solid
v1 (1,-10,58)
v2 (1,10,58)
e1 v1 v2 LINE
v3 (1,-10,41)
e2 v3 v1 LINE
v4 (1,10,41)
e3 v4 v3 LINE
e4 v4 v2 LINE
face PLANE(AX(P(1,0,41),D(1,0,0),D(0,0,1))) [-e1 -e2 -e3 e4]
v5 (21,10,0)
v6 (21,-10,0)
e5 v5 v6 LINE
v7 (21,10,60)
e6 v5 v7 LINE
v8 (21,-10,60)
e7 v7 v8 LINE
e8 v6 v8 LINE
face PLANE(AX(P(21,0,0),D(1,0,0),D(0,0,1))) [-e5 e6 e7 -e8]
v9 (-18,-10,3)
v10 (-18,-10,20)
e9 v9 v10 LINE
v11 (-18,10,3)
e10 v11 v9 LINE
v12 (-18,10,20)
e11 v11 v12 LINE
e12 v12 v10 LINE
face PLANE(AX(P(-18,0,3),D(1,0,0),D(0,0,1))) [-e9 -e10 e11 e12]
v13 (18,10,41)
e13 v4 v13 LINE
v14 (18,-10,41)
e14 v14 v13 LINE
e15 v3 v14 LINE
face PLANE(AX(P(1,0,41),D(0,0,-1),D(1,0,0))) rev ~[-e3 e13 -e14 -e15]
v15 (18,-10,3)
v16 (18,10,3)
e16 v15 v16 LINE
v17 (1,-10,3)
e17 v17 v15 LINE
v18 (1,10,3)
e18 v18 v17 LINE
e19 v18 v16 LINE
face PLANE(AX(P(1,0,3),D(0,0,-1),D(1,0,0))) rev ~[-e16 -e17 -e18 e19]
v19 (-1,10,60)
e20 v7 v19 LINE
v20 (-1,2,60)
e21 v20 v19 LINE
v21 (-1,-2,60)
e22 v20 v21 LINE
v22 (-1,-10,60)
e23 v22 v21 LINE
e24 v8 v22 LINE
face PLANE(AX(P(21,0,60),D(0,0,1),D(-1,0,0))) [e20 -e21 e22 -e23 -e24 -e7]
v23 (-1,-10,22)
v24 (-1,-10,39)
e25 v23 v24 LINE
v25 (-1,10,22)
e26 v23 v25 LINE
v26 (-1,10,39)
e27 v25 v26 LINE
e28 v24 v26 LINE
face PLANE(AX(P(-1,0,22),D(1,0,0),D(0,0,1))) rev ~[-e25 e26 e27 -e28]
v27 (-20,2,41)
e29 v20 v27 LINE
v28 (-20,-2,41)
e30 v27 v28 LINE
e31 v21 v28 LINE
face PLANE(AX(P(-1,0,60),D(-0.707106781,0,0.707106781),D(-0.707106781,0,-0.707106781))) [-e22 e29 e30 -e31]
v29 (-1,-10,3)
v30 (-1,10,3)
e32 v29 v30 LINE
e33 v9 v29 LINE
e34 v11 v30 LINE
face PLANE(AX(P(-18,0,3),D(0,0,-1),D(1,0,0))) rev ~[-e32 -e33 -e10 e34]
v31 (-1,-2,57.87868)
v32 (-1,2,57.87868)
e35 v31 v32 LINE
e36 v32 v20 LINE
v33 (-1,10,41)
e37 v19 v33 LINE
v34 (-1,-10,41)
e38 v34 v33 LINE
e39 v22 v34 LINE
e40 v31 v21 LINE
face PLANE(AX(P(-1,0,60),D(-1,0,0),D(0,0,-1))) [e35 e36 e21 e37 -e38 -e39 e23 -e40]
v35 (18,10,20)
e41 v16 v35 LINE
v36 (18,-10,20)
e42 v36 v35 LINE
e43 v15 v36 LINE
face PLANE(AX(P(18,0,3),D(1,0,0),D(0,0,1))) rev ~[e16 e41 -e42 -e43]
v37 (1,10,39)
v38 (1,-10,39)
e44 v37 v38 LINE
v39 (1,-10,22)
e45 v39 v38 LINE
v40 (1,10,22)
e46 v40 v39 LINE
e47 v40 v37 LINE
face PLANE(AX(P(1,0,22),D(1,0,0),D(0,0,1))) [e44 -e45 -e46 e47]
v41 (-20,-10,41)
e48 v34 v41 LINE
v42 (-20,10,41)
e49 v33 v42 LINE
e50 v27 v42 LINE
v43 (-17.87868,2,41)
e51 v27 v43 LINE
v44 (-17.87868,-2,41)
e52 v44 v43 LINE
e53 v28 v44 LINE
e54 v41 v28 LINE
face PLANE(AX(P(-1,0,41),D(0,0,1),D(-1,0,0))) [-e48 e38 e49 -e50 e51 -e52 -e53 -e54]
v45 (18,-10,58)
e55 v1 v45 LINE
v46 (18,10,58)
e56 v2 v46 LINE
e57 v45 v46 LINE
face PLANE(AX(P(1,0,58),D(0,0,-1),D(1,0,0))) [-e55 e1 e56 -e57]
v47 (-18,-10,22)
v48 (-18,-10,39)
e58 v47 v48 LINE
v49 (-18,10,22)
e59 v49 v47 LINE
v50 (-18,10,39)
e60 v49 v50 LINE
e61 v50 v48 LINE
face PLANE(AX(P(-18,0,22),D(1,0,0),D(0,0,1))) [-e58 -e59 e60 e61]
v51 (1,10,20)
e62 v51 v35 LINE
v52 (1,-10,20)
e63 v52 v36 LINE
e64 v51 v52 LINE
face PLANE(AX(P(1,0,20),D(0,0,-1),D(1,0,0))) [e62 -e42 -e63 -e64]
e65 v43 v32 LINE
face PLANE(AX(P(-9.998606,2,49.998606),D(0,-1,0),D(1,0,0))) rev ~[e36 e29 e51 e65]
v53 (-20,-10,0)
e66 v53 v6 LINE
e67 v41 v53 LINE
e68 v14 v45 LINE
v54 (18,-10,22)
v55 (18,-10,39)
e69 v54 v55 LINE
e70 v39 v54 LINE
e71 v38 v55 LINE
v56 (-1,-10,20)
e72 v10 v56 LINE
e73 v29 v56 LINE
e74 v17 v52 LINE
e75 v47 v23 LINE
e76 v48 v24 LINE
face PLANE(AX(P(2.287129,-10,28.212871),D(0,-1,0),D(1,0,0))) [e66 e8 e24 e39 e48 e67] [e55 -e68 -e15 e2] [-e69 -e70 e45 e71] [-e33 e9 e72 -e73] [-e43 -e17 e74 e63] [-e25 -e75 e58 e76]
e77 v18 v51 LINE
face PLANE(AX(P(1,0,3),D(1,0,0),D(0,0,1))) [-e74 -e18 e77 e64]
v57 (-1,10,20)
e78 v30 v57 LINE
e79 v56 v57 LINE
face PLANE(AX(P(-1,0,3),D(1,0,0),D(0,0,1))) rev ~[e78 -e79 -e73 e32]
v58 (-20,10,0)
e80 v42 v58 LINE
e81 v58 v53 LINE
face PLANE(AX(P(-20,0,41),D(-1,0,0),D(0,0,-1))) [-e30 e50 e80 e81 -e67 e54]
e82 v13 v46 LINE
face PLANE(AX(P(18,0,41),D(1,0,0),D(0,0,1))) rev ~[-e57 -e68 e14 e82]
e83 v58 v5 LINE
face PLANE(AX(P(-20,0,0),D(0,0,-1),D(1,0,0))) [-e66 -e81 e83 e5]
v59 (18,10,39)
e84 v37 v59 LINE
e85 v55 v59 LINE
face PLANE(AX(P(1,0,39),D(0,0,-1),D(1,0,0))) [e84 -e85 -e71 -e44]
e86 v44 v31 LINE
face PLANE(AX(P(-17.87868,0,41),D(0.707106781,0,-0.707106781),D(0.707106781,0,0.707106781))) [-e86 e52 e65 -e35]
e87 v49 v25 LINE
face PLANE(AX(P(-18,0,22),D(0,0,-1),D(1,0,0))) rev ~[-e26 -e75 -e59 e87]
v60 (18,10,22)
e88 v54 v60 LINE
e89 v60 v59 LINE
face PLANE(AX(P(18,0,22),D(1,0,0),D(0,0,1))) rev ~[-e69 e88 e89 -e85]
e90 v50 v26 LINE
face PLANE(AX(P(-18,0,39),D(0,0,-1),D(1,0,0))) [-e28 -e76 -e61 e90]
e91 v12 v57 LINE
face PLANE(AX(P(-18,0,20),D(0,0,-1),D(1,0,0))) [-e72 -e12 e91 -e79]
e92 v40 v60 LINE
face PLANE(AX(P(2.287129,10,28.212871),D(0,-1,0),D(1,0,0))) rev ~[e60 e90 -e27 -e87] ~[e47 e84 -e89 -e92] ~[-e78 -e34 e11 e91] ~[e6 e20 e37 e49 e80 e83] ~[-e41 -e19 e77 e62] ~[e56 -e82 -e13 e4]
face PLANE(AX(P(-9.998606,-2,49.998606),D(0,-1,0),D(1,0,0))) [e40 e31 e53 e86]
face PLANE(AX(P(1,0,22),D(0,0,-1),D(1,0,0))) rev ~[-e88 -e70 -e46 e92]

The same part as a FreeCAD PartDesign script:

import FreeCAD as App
import Part
import Sketcher


def add_polygon(sketch, points):
    """Adds a closed chain of lines whose ends are joined by coincident constraints."""
    first, n = sketch.GeometryCount, len(points)
    for a, b in zip(points, points[1:] + points[:1]):
        sketch.addGeometry(Part.LineSegment(App.Vector(*a, 0), App.Vector(*b, 0)), False)
    for i in range(n):
        sketch.addConstraint(Sketcher.Constraint("Coincident", first + i, 2, first + (i + 1) % n, 1))

doc = App.newDocument("Part")
body = doc.addObject("PartDesign::Body", "Body")

sketch1 = body.newObject("Sketcher::SketchObject", "Sketch")
sketch1.AttachmentSupport = (doc.getObject("XZ_Plane"), [""])
sketch1.MapMode = "FlatFace"
add_polygon(sketch1, [(-20, 41), (-20, 0), (21, 0), (21, 60), (-1, 60), (-1, 41)])
add_polygon(sketch1, [(-1, 3), (-18, 3), (-18, 20), (-1, 20)])
add_polygon(sketch1, [(18, 3), (1, 3), (1, 20), (18, 20)])
add_polygon(sketch1, [(-1, 22), (-18, 22), (-18, 39), (-1, 39)])
add_polygon(sketch1, [(18, 22), (1, 22), (1, 39), (18, 39)])
add_polygon(sketch1, [(18, 41), (1, 41), (1, 58), (18, 58)])
sketch1.addConstraint(Sketcher.Constraint("Vertical", 0))
sketch1.addConstraint(Sketcher.Constraint("Horizontal", 1))
sketch1.addConstraint(Sketcher.Constraint("Vertical", 2))
sketch1.addConstraint(Sketcher.Constraint("Horizontal", 3))
sketch1.addConstraint(Sketcher.Constraint("Vertical", 4))
sketch1.addConstraint(Sketcher.Constraint("Horizontal", 5))
sketch1.addConstraint(Sketcher.Constraint("Horizontal", 6))
sketch1.addConstraint(Sketcher.Constraint("Vertical", 7))
sketch1.addConstraint(Sketcher.Constraint("Horizontal", 8))
sketch1.addConstraint(Sketcher.Constraint("Vertical", 9))
sketch1.addConstraint(Sketcher.Constraint("Horizontal", 10))
sketch1.addConstraint(Sketcher.Constraint("Vertical", 11))
sketch1.addConstraint(Sketcher.Constraint("Horizontal", 12))
sketch1.addConstraint(Sketcher.Constraint("Vertical", 13))
sketch1.addConstraint(Sketcher.Constraint("Horizontal", 14))
sketch1.addConstraint(Sketcher.Constraint("Vertical", 15))
sketch1.addConstraint(Sketcher.Constraint("Horizontal", 16))
sketch1.addConstraint(Sketcher.Constraint("Vertical", 17))
sketch1.addConstraint(Sketcher.Constraint("Horizontal", 18))
sketch1.addConstraint(Sketcher.Constraint("Vertical", 19))
sketch1.addConstraint(Sketcher.Constraint("Horizontal", 20))
sketch1.addConstraint(Sketcher.Constraint("Vertical", 21))
sketch1.addConstraint(Sketcher.Constraint("Horizontal", 22))
sketch1.addConstraint(Sketcher.Constraint("Vertical", 23))
sketch1.addConstraint(Sketcher.Constraint("Horizontal", 24))
sketch1.addConstraint(Sketcher.Constraint("Vertical", 25))
sketch1.addConstraint(Sketcher.Constraint("Symmetric", 9, 2, 10, 2, -2))
sketch1.addConstraint(Sketcher.Constraint("Symmetric", 7, 2, 12, 2, -2))
sketch1.addConstraint(Sketcher.Constraint("Symmetric", 17, 2, 18, 2, -2))
sketch1.addConstraint(Sketcher.Constraint("Symmetric", 15, 2, 20, 2, -2))
sketch1.addConstraint(Sketcher.Constraint("Symmetric", 4, 2, 22, 2, -2))
sketch1.addConstraint(Sketcher.Constraint("PointOnObject", 0, 2, -1))
sketch1.addConstraint(Sketcher.Constraint("Vertical", 4, 2, 8, 2))
sketch1.addConstraint(Sketcher.Constraint("Vertical", 7, 2, 14, 2))
sketch1.addConstraint(Sketcher.Constraint("Vertical", 9, 2, 16, 2))
sketch1.addConstraint(Sketcher.Constraint("Vertical", 21, 2, 24, 2))
sketch1.addConstraint(Sketcher.Constraint("Equal", 1, 0))
sketch1.addConstraint(Sketcher.Constraint("Equal", 5, 4))
sketch1.addConstraint(Sketcher.Constraint("Equal", 24, 7))
sketch1.addConstraint(Sketcher.Constraint("Equal", 13, 15))
sketch1.addConstraint(Sketcher.Constraint("Equal", 21, 23))
sketch1.addConstraint(Sketcher.Constraint("DistanceX", 1, 1, 1, 2, 41.0))
sketch1.addConstraint(Sketcher.Constraint("DistanceX", 3, 2, 3, 1, 22.0))
sketch1.addConstraint(Sketcher.Constraint("DistanceX", 6, 2, 6, 1, 17.0))
sketch1.addConstraint(Sketcher.Constraint("DistanceX", 0, 2, -1, 1, 20.0))
sketch1.addConstraint(Sketcher.Constraint("DistanceY", -1, 1, 6, 2, 3.0))
sketch1.addConstraint(Sketcher.Constraint("DistanceY", -1, 1, 14, 2, 22.0))
pad1 = body.newObject("PartDesign::Pad", "Pad")
pad1.Profile = sketch1
pad1.Length = 20
pad1.Midplane = True

sketch2 = body.newObject("Sketcher::SketchObject", "Sketch001")
sketch2.AttachmentSupport = (doc.getObject("XZ_Plane"), [""])
sketch2.MapMode = "FlatFace"
add_polygon(sketch2, [(-1, 57.9), (-1, 60), (-20, 41), (-17.9, 41)])
sketch2.addConstraint(Sketcher.Constraint("Vertical", 0))
sketch2.addConstraint(Sketcher.Constraint("Horizontal", 2))
sketch2.addConstraint(Sketcher.Constraint("Parallel", 1, 3))
sketch2.addConstraint(Sketcher.Constraint("Equal", 2, 0))
sketch2.addConstraint(Sketcher.Constraint("DistanceX", 0, 2, -1, 1, 1.0))
sketch2.addConstraint(Sketcher.Constraint("DistanceY", -1, 1, 0, 2, 60.0))
sketch2.addConstraint(Sketcher.Constraint("DistanceX", 1, 2, -1, 1, 20.0))
sketch2.addConstraint(Sketcher.Constraint("DistanceX", 2, 1, 2, 2, 2.12132))
pad2 = body.newObject("PartDesign::Pad", "Pad001")
pad2.Profile = sketch2
pad2.Length = 4
pad2.Midplane = True

doc.recompute()
